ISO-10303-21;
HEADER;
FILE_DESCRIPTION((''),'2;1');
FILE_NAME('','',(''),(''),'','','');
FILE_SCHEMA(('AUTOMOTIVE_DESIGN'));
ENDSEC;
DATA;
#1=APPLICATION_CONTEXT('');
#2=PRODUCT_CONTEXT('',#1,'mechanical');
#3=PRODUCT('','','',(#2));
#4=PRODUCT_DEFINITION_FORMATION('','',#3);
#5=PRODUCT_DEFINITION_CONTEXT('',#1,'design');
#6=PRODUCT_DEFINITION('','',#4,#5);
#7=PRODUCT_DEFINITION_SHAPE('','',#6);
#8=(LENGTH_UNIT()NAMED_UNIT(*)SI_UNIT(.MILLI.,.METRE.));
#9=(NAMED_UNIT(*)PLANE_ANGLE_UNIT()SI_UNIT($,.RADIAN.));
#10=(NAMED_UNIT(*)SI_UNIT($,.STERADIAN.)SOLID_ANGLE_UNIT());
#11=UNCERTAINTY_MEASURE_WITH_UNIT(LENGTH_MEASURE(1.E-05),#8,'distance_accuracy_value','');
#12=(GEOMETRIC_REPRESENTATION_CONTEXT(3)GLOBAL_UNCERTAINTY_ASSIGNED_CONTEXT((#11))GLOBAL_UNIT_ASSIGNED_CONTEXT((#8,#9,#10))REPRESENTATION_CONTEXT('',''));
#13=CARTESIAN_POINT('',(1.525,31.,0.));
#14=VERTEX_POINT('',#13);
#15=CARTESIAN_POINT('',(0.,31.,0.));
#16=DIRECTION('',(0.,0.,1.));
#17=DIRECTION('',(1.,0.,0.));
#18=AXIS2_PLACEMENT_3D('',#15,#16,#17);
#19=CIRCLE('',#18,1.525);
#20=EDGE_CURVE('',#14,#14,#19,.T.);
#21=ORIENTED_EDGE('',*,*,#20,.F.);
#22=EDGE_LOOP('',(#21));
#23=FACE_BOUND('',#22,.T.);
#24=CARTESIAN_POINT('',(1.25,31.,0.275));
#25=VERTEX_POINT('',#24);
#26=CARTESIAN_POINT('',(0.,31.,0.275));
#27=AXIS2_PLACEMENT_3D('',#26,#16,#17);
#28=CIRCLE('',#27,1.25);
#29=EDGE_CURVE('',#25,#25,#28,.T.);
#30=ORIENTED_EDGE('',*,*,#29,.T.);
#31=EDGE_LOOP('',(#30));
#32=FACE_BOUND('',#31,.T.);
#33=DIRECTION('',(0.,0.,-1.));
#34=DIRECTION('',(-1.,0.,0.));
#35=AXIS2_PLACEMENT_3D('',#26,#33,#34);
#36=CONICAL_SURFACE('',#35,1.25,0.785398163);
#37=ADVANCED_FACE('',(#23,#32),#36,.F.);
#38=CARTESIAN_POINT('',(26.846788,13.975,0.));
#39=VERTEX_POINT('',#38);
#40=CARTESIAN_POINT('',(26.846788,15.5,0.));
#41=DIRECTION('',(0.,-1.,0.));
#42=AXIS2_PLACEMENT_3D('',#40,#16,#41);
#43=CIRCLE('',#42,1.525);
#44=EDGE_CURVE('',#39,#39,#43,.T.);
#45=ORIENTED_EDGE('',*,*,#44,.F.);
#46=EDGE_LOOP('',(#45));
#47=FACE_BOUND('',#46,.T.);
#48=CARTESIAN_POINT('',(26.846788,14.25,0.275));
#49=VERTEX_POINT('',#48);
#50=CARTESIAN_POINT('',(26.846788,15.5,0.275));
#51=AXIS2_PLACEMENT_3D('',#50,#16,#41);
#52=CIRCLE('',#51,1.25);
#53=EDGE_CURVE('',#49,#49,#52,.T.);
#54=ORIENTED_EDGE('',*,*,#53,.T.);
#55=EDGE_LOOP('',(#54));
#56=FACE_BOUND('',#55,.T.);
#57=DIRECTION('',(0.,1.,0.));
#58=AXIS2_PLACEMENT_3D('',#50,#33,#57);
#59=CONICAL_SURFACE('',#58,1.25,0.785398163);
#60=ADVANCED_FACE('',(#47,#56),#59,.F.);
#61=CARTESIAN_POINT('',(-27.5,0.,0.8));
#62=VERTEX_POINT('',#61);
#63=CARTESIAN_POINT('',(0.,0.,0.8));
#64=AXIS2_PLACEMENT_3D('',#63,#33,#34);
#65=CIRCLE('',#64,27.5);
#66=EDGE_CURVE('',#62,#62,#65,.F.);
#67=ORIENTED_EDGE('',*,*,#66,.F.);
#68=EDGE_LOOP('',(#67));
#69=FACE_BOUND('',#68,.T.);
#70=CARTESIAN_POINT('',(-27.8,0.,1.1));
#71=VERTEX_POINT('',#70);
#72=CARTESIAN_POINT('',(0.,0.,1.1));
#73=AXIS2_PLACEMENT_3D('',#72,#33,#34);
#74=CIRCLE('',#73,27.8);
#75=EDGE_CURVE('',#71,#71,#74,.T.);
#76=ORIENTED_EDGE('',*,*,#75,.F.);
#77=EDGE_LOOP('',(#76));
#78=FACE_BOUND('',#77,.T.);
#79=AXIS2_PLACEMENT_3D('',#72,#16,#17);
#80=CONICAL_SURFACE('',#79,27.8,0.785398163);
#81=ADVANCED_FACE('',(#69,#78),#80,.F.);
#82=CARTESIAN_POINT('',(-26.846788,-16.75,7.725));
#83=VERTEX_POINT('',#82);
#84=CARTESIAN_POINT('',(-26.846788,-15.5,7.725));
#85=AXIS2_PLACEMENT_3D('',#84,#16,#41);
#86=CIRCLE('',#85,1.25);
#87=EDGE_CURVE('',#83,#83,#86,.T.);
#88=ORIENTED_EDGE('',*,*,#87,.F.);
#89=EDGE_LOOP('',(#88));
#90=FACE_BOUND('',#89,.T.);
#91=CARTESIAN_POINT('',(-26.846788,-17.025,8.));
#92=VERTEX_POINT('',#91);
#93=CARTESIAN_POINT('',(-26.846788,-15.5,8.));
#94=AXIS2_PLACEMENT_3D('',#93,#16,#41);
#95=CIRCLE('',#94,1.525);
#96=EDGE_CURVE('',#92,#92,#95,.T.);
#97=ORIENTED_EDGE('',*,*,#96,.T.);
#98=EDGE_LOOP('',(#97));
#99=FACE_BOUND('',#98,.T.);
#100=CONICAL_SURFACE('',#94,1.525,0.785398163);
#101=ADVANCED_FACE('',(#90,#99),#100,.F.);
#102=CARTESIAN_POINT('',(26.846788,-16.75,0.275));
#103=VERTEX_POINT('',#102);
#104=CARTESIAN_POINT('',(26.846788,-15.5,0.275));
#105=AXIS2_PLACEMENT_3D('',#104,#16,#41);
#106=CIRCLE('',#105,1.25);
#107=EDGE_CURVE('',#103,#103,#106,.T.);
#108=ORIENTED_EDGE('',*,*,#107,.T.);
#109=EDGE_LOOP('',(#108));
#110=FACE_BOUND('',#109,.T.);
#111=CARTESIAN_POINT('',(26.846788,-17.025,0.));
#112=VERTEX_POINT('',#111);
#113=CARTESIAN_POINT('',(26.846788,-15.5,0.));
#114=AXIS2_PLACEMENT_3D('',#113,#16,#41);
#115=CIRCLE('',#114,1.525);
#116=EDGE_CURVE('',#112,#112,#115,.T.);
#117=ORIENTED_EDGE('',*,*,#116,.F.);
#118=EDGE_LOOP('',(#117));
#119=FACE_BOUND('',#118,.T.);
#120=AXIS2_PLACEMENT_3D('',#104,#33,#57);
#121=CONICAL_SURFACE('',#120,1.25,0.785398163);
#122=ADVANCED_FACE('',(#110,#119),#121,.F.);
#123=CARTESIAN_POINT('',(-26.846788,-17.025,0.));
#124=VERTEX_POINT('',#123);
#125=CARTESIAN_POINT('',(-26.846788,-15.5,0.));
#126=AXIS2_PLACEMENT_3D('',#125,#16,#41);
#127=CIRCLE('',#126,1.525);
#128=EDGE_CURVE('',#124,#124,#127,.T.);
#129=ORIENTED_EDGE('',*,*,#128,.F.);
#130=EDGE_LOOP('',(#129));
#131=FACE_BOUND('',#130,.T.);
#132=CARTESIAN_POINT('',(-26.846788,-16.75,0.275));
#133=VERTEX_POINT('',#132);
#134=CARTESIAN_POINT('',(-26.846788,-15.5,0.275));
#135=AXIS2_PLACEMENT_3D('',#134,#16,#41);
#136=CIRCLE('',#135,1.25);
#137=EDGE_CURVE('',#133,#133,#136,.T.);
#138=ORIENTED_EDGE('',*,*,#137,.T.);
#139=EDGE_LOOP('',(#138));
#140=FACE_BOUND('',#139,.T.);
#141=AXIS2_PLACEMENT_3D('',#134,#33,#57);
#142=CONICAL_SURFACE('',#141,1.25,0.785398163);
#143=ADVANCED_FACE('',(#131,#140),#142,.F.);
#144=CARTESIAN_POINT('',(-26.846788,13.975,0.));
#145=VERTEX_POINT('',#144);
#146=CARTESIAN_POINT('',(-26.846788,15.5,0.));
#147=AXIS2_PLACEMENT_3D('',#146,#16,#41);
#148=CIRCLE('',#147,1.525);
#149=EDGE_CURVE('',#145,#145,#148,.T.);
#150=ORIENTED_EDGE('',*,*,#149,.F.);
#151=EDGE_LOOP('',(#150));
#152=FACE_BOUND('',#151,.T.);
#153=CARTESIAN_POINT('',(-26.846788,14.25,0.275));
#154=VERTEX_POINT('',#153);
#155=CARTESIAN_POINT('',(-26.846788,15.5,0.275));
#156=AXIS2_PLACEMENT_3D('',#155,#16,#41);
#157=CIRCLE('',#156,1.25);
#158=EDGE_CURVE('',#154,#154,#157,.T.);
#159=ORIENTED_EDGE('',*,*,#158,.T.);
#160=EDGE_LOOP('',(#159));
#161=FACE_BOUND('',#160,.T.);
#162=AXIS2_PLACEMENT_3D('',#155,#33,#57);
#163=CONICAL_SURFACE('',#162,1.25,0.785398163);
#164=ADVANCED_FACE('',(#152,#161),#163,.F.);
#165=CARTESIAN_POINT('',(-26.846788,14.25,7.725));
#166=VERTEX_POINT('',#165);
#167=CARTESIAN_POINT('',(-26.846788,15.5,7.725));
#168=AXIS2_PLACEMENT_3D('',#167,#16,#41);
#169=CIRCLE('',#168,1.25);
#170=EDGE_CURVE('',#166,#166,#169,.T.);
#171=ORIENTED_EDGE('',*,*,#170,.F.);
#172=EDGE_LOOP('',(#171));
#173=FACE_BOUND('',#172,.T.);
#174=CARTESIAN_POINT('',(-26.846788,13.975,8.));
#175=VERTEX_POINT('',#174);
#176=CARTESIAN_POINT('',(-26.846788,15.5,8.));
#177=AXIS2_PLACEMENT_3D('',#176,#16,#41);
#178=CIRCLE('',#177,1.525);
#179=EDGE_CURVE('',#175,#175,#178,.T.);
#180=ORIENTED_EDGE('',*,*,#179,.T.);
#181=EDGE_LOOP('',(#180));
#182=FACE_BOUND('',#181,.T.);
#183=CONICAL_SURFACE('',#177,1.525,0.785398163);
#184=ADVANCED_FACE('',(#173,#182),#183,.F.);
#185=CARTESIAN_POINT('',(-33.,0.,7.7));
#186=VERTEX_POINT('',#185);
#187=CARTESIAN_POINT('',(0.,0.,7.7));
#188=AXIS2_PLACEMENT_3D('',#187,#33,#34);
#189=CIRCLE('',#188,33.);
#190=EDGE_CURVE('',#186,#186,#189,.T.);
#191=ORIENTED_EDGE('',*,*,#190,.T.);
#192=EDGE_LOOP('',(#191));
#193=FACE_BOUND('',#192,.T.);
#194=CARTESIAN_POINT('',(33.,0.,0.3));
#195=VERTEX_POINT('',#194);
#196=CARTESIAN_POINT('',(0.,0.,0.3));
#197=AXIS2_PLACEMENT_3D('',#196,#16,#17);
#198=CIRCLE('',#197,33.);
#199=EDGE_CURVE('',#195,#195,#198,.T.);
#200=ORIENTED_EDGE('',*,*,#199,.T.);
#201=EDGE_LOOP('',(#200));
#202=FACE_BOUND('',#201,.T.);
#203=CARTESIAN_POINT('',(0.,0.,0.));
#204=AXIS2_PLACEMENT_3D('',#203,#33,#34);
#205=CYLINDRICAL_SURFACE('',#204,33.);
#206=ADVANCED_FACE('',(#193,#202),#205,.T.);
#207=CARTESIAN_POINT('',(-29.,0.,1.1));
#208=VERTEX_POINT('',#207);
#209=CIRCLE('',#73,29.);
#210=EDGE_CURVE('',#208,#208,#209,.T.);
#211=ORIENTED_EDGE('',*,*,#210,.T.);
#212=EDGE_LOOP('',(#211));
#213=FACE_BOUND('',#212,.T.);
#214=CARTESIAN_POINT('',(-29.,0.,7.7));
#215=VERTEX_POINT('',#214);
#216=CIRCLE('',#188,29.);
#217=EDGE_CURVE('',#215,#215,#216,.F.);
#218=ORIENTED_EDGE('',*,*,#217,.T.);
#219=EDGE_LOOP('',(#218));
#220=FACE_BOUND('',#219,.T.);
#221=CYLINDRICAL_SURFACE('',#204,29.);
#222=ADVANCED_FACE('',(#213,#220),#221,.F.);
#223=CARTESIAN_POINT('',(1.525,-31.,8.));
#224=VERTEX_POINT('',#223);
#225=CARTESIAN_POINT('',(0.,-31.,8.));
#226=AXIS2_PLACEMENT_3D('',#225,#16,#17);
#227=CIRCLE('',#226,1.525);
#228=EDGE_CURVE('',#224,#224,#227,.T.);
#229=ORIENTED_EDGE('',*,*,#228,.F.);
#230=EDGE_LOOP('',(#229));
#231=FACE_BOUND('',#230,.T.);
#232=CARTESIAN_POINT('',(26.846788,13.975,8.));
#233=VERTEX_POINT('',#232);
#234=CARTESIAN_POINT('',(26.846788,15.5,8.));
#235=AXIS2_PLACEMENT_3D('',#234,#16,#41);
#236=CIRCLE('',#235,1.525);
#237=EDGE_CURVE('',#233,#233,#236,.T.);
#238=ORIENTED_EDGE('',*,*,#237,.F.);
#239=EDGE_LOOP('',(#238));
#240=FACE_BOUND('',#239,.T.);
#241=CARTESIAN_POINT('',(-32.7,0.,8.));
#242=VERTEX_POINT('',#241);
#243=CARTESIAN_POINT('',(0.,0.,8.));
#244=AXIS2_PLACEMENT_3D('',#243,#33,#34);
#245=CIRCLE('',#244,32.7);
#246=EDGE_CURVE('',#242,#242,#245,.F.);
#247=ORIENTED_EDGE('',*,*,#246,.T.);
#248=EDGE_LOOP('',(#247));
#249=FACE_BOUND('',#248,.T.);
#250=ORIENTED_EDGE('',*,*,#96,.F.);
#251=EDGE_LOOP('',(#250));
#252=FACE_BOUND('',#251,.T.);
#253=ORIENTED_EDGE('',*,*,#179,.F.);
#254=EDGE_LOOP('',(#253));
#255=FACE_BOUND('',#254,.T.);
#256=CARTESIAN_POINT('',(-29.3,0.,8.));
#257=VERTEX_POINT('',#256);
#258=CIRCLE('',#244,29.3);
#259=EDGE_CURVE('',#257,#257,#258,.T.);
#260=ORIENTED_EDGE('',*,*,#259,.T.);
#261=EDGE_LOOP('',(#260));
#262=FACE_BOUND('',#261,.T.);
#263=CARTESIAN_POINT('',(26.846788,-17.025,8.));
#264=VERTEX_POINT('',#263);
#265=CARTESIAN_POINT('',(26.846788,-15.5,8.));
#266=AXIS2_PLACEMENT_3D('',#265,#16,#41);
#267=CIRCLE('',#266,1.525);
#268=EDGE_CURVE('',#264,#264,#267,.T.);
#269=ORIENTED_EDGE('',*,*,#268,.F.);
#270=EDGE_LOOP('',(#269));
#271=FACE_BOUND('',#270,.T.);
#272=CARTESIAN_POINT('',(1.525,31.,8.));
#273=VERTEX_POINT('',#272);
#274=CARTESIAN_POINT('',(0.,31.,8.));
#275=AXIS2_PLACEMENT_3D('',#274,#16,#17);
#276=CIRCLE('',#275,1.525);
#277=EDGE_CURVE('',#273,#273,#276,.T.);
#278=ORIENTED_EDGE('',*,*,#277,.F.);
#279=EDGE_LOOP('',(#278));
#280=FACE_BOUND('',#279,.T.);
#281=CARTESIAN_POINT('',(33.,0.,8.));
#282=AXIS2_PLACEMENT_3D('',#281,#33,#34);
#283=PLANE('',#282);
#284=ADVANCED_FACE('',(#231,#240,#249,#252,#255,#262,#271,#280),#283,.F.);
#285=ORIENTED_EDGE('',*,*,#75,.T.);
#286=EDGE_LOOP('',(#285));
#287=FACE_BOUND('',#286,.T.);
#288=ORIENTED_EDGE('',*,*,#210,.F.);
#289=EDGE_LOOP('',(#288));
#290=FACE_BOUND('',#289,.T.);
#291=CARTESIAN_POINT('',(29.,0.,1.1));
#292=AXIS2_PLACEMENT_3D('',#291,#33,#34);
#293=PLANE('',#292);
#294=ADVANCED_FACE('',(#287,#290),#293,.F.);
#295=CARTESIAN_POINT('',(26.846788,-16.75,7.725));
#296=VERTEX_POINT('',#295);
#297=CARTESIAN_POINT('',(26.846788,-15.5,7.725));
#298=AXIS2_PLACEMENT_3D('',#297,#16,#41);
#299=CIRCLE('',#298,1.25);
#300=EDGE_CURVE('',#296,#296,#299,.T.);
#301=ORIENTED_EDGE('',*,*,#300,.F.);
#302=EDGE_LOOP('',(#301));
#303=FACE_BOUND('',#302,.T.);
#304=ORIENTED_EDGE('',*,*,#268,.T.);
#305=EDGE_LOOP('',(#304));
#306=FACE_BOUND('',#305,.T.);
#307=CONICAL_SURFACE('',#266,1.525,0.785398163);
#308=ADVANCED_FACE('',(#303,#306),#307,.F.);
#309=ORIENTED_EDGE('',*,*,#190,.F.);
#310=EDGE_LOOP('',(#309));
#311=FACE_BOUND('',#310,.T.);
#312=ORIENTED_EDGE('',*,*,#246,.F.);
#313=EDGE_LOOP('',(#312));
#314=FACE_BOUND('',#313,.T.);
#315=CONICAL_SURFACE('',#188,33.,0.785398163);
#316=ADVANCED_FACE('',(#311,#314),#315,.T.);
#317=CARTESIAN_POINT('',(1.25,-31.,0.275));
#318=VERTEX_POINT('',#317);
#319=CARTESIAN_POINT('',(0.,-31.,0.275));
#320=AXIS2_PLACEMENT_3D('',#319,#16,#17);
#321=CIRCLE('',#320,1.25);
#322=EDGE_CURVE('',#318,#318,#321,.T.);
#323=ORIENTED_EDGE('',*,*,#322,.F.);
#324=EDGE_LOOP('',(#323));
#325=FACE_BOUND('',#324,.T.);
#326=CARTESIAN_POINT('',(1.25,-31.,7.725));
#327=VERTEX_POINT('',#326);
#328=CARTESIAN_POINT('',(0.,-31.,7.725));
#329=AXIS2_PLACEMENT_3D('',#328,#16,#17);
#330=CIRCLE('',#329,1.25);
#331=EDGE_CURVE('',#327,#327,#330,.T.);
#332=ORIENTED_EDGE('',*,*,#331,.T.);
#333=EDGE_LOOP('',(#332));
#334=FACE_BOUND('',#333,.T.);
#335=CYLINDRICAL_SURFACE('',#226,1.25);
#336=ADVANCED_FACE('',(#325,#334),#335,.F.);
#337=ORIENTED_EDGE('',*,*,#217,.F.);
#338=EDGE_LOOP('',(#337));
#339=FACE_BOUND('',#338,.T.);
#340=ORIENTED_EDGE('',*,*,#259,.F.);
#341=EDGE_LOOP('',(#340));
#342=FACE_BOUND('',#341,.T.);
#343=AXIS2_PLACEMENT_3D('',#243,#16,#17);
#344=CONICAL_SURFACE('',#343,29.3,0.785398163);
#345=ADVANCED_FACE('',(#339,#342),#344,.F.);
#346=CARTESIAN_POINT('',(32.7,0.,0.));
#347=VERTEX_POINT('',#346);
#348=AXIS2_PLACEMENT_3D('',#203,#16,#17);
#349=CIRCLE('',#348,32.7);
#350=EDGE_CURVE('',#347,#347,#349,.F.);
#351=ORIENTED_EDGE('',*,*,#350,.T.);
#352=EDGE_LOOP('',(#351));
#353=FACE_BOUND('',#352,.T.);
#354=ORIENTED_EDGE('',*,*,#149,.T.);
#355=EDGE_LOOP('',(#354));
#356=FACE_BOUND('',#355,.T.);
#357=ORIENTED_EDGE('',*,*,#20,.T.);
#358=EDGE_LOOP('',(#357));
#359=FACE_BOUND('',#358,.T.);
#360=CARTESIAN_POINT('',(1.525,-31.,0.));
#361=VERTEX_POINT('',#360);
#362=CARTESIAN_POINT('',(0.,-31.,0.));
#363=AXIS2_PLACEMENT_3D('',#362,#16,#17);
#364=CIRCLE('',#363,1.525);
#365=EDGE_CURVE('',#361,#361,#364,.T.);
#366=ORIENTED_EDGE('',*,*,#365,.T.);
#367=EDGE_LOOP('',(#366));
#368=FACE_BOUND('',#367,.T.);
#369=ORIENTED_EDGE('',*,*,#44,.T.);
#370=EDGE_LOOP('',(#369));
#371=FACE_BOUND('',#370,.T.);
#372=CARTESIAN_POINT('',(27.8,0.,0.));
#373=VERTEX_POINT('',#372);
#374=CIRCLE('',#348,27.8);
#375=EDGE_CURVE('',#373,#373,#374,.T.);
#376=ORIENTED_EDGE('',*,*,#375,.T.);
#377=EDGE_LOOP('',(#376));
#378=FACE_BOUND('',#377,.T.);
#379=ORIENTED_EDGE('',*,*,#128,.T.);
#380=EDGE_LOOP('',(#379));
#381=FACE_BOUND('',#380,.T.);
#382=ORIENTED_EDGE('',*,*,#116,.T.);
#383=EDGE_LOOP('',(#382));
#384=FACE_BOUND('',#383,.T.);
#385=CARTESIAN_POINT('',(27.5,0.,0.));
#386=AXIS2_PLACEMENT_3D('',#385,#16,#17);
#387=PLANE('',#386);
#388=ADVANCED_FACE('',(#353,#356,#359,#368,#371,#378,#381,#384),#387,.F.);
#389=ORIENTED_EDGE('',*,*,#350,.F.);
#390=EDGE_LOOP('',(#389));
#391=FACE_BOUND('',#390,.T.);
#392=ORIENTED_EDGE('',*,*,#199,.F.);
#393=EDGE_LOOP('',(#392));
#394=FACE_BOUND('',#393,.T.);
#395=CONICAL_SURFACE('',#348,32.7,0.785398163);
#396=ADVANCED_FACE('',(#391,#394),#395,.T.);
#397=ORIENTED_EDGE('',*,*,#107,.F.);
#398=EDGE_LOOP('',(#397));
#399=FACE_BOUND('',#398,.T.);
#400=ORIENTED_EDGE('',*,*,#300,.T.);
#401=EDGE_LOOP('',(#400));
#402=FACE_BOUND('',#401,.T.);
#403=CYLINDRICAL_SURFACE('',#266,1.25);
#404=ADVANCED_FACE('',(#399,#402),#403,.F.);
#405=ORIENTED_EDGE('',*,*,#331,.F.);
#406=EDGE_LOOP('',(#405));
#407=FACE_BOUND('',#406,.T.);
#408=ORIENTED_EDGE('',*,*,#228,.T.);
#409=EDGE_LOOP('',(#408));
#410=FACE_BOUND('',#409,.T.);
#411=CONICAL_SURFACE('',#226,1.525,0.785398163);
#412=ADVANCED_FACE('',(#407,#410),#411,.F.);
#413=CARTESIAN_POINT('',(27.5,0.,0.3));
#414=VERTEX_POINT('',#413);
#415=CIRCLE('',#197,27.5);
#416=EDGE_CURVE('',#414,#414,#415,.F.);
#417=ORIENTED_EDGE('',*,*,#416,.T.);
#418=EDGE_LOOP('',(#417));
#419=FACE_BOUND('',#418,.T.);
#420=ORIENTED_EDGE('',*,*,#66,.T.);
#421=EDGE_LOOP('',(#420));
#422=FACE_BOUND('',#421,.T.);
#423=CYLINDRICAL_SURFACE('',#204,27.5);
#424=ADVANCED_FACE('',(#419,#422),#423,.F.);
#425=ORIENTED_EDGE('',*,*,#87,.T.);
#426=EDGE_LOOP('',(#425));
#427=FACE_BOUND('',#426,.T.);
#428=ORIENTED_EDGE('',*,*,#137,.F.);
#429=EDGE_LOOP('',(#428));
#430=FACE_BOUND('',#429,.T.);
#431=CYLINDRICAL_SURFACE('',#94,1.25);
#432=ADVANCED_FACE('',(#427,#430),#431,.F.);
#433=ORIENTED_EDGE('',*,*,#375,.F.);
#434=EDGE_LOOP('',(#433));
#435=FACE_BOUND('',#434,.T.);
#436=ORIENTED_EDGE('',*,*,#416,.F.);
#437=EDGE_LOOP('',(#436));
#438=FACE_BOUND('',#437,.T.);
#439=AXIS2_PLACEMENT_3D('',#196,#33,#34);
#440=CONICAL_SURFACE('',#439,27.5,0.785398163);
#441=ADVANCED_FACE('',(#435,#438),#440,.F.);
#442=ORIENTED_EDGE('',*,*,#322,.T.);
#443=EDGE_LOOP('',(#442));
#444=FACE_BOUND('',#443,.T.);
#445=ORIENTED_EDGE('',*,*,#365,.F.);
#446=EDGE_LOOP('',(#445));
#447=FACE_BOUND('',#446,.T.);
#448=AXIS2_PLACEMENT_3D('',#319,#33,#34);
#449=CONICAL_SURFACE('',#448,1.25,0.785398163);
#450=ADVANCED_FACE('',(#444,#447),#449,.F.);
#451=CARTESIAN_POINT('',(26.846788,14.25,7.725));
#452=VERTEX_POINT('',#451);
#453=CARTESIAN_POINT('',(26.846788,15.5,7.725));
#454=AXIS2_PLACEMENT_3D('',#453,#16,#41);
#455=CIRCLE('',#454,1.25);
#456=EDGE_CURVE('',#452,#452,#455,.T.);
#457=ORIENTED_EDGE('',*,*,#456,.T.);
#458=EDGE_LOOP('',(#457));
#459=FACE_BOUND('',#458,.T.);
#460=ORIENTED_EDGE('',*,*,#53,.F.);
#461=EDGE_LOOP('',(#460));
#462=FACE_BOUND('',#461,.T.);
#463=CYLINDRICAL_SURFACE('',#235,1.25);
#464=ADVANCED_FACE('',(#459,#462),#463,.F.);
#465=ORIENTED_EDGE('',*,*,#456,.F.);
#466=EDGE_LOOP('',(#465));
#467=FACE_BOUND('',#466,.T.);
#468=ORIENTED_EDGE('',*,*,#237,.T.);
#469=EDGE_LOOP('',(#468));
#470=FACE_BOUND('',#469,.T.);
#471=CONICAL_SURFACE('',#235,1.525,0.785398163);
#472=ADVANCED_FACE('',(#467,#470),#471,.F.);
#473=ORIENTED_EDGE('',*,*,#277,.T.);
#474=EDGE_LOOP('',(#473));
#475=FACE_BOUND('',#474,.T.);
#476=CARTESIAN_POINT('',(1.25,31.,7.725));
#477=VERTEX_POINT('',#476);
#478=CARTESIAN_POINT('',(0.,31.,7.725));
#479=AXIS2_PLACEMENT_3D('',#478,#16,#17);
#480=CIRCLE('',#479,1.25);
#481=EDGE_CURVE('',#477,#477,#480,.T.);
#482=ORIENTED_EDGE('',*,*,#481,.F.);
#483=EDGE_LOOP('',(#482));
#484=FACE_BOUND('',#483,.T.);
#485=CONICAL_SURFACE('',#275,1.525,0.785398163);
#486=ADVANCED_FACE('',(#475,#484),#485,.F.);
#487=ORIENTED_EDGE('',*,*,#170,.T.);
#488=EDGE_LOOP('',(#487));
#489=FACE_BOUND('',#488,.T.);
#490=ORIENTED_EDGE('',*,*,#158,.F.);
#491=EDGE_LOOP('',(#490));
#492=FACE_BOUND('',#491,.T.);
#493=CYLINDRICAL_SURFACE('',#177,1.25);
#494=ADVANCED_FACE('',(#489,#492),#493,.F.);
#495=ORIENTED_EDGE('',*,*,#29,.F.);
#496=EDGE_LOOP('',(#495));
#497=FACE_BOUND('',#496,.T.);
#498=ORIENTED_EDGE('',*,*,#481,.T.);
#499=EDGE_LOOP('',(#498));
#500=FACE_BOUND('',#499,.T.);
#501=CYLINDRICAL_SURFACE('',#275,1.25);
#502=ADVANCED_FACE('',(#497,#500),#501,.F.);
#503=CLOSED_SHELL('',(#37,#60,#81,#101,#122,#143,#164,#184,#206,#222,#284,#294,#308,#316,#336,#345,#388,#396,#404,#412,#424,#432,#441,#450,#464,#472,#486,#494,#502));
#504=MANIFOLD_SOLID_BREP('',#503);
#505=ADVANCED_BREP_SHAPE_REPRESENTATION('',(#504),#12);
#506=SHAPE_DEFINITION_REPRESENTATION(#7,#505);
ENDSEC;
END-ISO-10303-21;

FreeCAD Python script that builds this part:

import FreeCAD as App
import Part
import Sketcher


def edges_at(feature, points):
    """Names of the edges that pass closest to the given points."""
    edges = feature.Shape.Edges
    near = lambda p: min(range(len(edges)), key=lambda i: edges[i].distToShape(Part.Vertex(*p))[0])
    return sorted({f"Edge{near(p) + 1}" for p in points})


def add_polygon(sketch, points):
    """Adds a closed chain of lines whose ends are joined by coincident constraints."""
    first, n = sketch.GeometryCount, len(points)
    for a, b in zip(points, points[1:] + points[:1]):
        sketch.addGeometry(Part.LineSegment(App.Vector(*a, 0), App.Vector(*b, 0)), False)
    for i in range(n):
        sketch.addConstraint(Sketcher.Constraint("Coincident", first + i, 2, first + (i + 1) % n, 1))

doc = App.newDocument("Part")
body = doc.addObject("PartDesign::Body", "Body")

sketch1 = body.newObject("Sketcher::SketchObject", "Sketch")
sketch1.AttachmentSupport = (doc.getObject("XZ_Plane"), [""])
sketch1.MapMode = "FlatFace"
add_polygon(sketch1, [(33, 0), (27.5, 0), (27.5, 1.1), (29, 1.1), (29, 8), (33, 8)])
sketch1.addConstraint([
    Sketcher.Constraint("Horizontal", 0),
    Sketcher.Constraint("Vertical", 1),
    Sketcher.Constraint("Horizontal", 2),
    Sketcher.Constraint("Vertical", 3),
    Sketcher.Constraint("Horizontal", 4),
    Sketcher.Constraint("Vertical", 5),
    Sketcher.Constraint("PointOnObject", 0, 2, -1),
    Sketcher.Constraint("DistanceX", 4, 1, 4, 2, 4.0),
    Sketcher.Constraint("DistanceY", 5, 2, 5, 1, 8.0),
    Sketcher.Constraint("DistanceX", 0, 2, 0, 1, 5.5),
    Sketcher.Constraint("DistanceY", 1, 1, 1, 2, 1.1),
    Sketcher.Constraint("DistanceX", -1, 1, 2, 2, 29.0),
])
revolution = body.newObject("PartDesign::Revolution", "Revolution")
revolution.Profile = sketch1
revolution.ReferenceAxis = (sketch1, ["V_Axis"])
revolution.Angle = 360

sketch2 = body.newObject("Sketcher::SketchObject", "Sketch001")
sketch2.AttachmentSupport = (doc.getObject("YZ_Plane"), [""])
sketch2.MapMode = "FlatFace"
add_polygon(sketch2, [(31, 0), (31, 8), (29.475, 8), (29.75, 7.725), (29.75, 0.275), (29.475, 0)])
sketch2.addGeometry(Part.LineSegment(App.Vector(31, 8, 0), App.Vector(31, 0, 0)), True)
sketch2.addConstraint([
    Sketcher.Constraint("Vertical", 0),
    Sketcher.Constraint("Horizontal", 1),
    Sketcher.Constraint("Vertical", 3),
    Sketcher.Constraint("Horizontal", 5),
    Sketcher.Constraint("Vertical", 6),
    Sketcher.Constraint("Coincident", 6, 1, 0, 2),
    Sketcher.Constraint("PointOnObject", 4, 2, -1),
    Sketcher.Constraint("PointOnObject", 6, 2, -1),
    Sketcher.Constraint("Perpendicular", 2, 4),
    Sketcher.Constraint("Vertical", 1, 2, 4, 2),
    Sketcher.Constraint("Equal", 2, 4),
    Sketcher.Constraint("DistanceY", 0, 1, 0, 2, 8.0),
    Sketcher.Constraint("DistanceX", -1, 1, 0, 2, 31.0),
    Sketcher.Constraint("DistanceY", 3, 2, 3, 1, 7.45),
    Sketcher.Constraint("DistanceX", 1, 2, 1, 1, 1.525),
])
groove = body.newObject("PartDesign::Groove", "Groove")
groove.Profile = sketch2
groove.ReferenceAxis = (sketch2, ["Axis0"])
groove.Angle = 360
doc.recompute()

polarpattern = body.newObject("PartDesign::PolarPattern", "PolarPattern")
polarpattern.Originals = [groove]
polarpattern.Axis = (doc.getObject("Z_Axis"), [""])
polarpattern.Angle = 360
polarpattern.Occurrences = 6
body.Tip = polarpattern
doc.recompute()

chamfer = body.newObject("PartDesign::Chamfer", "Chamfer")
chamfer.Base = (polarpattern, edges_at(polarpattern, [
    (27.5, 0, 1.1),
    (29, 0, 8),
    (33, 0, 8),
    (33, 0, 0),
    (27.5, 0, 0),
]))
chamfer.Size = 0.3

doc.recompute()
